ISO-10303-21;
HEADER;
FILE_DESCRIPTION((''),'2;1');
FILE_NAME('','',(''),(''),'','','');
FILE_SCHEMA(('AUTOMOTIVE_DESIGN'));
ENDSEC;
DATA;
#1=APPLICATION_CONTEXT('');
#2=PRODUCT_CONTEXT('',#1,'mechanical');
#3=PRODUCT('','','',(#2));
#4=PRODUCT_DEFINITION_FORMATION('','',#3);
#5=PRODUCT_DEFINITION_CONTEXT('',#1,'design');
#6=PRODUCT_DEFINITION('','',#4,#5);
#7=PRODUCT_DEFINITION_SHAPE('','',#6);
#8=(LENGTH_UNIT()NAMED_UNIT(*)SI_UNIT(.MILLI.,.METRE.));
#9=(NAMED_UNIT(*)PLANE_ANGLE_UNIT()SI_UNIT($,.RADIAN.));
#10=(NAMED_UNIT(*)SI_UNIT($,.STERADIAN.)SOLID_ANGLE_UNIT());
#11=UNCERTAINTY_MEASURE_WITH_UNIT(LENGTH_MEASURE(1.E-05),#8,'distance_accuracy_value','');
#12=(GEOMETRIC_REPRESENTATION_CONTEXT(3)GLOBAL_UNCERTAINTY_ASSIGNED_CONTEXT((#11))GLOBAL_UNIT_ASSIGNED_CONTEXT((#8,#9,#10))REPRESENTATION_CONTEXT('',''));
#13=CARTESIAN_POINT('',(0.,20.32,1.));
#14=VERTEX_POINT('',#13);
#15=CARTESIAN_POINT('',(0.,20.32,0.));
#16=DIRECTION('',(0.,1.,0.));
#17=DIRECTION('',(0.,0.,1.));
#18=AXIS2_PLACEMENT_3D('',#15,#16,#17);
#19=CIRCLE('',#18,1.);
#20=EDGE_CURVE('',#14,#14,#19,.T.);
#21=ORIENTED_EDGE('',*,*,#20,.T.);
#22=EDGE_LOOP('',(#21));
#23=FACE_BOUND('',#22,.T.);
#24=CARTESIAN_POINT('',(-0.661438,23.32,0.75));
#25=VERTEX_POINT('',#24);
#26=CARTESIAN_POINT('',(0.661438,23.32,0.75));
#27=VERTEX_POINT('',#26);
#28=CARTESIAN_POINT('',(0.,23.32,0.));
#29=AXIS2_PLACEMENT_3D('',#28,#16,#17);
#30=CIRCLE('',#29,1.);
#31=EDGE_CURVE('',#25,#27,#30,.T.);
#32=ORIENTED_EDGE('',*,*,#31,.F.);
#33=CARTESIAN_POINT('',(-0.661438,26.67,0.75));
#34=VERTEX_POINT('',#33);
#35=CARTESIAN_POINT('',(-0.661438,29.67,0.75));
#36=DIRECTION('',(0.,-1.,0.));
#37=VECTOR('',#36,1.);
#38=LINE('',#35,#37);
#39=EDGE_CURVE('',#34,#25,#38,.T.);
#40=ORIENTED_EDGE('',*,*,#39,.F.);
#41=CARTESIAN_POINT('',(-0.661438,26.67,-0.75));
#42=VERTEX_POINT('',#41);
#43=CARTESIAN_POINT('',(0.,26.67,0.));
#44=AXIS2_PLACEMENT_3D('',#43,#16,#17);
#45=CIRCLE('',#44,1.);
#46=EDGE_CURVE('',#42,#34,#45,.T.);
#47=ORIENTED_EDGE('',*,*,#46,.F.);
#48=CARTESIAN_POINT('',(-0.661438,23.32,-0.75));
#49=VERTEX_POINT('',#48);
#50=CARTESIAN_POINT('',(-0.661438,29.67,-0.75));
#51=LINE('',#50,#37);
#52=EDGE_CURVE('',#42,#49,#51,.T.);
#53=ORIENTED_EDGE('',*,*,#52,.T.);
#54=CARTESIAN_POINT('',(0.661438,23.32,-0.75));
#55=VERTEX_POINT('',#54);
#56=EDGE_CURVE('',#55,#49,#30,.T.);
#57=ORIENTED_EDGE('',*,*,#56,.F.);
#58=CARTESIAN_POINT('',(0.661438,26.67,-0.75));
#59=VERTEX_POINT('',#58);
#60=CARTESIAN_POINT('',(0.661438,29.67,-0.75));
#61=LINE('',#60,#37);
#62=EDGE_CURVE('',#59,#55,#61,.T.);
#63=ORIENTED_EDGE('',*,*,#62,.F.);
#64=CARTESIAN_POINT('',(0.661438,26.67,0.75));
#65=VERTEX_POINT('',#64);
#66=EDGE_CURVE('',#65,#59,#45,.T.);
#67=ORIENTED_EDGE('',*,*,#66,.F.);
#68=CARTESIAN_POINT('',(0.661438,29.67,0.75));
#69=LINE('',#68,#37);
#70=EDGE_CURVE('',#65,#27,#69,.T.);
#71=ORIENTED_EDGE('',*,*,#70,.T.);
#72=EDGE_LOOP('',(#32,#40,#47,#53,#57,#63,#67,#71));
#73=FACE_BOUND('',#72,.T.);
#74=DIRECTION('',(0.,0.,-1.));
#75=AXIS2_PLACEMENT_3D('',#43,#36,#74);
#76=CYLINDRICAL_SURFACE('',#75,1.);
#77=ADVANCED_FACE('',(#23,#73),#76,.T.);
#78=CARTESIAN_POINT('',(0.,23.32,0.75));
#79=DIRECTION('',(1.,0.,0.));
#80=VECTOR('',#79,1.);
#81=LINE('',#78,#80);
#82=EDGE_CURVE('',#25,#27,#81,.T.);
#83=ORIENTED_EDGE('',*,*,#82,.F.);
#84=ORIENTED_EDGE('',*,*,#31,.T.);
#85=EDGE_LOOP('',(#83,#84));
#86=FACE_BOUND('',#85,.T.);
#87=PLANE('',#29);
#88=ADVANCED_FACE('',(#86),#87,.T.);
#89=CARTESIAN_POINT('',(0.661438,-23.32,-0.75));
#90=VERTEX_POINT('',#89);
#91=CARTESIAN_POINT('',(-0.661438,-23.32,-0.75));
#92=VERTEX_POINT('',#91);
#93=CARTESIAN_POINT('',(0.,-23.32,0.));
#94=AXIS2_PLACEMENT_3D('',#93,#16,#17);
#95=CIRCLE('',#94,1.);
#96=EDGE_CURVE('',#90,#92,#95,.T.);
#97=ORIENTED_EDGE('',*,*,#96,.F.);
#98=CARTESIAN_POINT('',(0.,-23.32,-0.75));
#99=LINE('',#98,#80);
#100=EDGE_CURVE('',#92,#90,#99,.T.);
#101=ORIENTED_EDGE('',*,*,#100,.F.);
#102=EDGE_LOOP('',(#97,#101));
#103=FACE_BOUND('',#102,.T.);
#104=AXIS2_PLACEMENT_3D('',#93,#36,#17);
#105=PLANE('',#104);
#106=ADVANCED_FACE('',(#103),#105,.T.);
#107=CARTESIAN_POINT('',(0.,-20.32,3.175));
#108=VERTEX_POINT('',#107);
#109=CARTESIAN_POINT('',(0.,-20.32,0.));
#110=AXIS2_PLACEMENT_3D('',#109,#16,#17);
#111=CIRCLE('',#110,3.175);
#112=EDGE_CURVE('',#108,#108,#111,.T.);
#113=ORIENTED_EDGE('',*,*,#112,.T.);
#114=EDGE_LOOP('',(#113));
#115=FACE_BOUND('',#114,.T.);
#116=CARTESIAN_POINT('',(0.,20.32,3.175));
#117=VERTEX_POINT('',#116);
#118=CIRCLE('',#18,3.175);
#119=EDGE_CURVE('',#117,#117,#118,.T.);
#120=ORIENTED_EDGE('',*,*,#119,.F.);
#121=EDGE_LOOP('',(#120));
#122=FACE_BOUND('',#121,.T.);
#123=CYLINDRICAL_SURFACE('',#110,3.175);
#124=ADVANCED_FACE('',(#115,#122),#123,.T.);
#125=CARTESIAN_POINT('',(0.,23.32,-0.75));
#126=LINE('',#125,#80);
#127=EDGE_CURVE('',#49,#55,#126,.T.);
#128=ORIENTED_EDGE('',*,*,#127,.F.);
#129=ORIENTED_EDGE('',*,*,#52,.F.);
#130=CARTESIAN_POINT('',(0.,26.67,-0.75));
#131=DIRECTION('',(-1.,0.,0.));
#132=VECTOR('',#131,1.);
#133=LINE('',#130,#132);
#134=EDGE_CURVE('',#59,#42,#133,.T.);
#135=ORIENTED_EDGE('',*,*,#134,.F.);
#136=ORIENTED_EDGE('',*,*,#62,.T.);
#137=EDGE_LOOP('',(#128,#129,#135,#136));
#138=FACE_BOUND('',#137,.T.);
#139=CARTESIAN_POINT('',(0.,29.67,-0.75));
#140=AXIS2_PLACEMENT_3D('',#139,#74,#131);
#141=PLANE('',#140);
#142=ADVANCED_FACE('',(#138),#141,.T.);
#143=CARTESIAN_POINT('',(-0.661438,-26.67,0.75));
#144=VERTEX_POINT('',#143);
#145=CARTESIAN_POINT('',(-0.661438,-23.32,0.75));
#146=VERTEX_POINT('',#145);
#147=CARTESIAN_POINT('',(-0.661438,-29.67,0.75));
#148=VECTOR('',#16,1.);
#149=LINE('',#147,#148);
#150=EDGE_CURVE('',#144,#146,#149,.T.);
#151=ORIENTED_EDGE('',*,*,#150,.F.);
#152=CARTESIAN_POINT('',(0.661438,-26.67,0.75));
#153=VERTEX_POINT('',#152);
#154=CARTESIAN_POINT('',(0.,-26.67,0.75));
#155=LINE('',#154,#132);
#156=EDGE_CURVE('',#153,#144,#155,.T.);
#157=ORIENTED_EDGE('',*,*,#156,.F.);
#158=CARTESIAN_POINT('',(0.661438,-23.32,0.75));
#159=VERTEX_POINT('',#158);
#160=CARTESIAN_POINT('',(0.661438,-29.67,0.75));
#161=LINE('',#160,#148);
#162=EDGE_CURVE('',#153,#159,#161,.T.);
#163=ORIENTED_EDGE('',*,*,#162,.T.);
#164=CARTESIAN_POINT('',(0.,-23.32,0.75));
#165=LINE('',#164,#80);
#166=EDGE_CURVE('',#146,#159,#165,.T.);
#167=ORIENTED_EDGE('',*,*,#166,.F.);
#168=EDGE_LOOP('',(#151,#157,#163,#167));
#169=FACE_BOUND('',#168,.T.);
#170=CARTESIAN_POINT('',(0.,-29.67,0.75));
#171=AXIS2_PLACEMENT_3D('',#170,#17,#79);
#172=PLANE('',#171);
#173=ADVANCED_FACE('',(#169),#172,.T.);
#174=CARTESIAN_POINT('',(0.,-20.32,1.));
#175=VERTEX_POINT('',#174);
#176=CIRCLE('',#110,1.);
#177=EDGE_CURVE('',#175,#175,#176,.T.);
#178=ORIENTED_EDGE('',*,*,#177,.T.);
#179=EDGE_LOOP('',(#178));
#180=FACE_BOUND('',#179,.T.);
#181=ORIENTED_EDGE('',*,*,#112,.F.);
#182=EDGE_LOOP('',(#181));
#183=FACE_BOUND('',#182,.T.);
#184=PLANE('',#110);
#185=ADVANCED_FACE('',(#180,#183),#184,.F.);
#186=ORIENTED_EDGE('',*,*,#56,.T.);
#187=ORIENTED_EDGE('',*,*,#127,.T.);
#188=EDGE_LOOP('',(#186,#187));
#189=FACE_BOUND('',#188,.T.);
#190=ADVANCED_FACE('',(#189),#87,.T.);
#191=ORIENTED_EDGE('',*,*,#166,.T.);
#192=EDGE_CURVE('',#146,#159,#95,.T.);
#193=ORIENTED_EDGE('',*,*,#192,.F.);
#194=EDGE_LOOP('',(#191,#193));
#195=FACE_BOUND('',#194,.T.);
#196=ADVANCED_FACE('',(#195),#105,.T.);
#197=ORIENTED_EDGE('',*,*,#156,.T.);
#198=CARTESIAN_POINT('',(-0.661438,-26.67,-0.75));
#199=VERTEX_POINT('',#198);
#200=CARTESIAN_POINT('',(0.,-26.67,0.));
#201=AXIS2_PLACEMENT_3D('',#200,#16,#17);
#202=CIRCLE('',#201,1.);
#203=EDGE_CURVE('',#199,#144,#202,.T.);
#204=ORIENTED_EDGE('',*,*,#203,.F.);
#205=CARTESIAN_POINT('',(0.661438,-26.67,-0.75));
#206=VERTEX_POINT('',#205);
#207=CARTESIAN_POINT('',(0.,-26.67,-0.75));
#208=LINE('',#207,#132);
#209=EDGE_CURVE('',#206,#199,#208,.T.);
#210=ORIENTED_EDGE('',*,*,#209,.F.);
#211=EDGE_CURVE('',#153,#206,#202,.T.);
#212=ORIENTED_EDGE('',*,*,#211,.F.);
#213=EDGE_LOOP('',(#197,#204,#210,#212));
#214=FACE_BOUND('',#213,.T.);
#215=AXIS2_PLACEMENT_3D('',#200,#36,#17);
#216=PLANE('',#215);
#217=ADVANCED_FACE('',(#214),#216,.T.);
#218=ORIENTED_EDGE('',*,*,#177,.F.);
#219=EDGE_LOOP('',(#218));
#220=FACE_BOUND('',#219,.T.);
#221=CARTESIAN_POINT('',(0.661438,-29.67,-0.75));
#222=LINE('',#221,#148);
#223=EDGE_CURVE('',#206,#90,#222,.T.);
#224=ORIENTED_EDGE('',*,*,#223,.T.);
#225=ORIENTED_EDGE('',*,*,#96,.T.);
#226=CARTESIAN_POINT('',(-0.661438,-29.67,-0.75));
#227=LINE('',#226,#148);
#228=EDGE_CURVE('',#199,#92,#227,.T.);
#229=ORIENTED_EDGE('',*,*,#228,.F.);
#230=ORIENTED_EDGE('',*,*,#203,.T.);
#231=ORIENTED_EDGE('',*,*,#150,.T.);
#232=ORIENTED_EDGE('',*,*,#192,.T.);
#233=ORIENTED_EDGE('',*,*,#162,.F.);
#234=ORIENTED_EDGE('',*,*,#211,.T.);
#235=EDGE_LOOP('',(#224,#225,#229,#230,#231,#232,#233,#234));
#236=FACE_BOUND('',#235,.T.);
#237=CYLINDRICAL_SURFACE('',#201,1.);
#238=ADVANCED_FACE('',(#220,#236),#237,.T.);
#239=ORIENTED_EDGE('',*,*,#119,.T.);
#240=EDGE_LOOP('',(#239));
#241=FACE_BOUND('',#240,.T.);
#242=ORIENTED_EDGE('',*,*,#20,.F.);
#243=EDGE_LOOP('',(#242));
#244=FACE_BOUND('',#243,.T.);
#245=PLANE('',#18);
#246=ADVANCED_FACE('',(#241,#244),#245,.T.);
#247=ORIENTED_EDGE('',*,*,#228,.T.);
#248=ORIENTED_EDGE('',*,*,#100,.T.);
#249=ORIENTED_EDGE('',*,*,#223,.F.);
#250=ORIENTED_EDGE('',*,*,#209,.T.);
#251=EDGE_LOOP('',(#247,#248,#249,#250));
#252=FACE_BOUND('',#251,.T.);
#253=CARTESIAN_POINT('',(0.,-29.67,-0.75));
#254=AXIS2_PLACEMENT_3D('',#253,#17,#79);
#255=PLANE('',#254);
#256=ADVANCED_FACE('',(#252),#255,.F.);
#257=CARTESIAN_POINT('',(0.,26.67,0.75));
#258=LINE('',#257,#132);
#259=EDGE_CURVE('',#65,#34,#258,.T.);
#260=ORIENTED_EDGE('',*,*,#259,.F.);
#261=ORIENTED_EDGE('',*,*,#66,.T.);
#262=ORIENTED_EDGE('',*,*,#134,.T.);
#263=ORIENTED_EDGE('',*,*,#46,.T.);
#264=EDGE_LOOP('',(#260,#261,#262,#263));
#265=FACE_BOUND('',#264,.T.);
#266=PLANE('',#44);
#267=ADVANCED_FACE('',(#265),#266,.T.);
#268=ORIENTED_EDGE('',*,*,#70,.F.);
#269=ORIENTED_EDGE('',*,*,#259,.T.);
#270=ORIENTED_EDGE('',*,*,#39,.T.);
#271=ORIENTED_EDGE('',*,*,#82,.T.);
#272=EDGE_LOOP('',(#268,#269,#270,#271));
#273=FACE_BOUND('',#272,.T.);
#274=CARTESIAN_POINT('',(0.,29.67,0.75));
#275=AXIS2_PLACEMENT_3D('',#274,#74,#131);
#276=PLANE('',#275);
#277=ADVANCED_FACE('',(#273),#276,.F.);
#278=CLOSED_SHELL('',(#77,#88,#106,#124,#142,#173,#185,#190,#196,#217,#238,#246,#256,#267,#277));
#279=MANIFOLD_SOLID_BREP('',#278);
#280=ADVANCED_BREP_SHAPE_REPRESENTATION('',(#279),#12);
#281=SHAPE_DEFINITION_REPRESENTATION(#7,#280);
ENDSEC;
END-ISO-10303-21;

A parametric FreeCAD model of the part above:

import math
import FreeCAD as App
import Part
import Sketcher
from FreeCAD import Vector
Q = App.Units.Quantity

doc = App.newDocument("Part")
params = doc.addObject("Spreadsheet::Sheet", "Params")
for row, (alias, value) in enumerate([
    ("sketch1_diameter", "0.25 in"),
    ("pad1_length", "0.8 in"),
    ("pad1_length2", "0.8 in"),
    ("pad2_length", "0.25 in"),
    ("pocket1_length", "0.25 in"),
], start=1):
    params.set(f"A{row}", alias)
    params.set(f"B{row}", "=" + value)
    params.setAlias(f"B{row}", alias)

body = doc.addObject("PartDesign::Body", "Body")

sketch1 = doc.addObject("Sketcher::SketchObject", "Sketch")
body.addObject(sketch1)
sketch1.AttachmentSupport = (doc.XZ_Plane, [""])
sketch1.MapMode = "FlatFace"
sketch1.addGeometry(Part.Circle(Vector(0, 0, 0), Vector(0, 0, 1), 3.175), False)
sketch1.addConstraint([
    Sketcher.Constraint("Coincident", 0, 3, -1, 1),
    Sketcher.Constraint("Diameter", 0, Q("0.25 in")),
])
sketch1.setExpression("Constraints[1]", "Params.sketch1_diameter")
pad1 = doc.addObject("PartDesign::Pad", "Pad")
body.addObject(pad1)
pad1.Profile = sketch1
pad1.Type = "TwoLengths"
pad1.setExpression("Length", "Params.pad1_length")
pad1.setExpression("Length2", "Params.pad1_length2")
pad1.Reversed = True

sketch2 = doc.addObject("Sketcher::SketchObject", "Sketch001")
body.addObject(sketch2)
sketch2.AttachmentSupport = (doc.XZ_Plane, [""])
sketch2.MapMode = "FlatFace"
sketch2.AttachmentOffset = App.Placement(Vector(0, 0, -0.8 * 25.4), App.Rotation())
sketch2.addGeometry(Part.Circle(Vector(0, 0, 0), Vector(0, 0, 1), 1), False)
sketch2.addConstraint([
    Sketcher.Constraint("Coincident", 0, 3, -1, 1),
    Sketcher.Constraint("Diameter", 0, 2.0),
])
pad2 = doc.addObject("PartDesign::Pad", "Pad001")
body.addObject(pad2)
pad2.Profile = sketch2
pad2.setExpression("Length", "Params.pad2_length")
pad2.Reversed = True

sketch3 = doc.addObject("Sketcher::SketchObject", "Sketch002")
body.addObject(sketch3)
sketch3.AttachmentSupport = (doc.XZ_Plane, [""])
sketch3.MapMode = "FlatFace"
sketch3.AttachmentOffset = App.Placement(Vector(0, 0, -23.32), App.Rotation())
sketch3.addGeometry([
    Part.ArcOfCircle(Part.Circle(Vector(0, 0, 0), Vector(0, 0, 1), 1), math.radians(-131.409622), math.radians(-48.590378)),
    Part.LineSegment(Vector(-0.661438, -0.75, 0), Vector(0.661438, -0.75, 0)),
    Part.LineSegment(Vector(0.661438, 0.75, 0), Vector(-0.661438, 0.75, 0)),
    Part.ArcOfCircle(Part.Circle(Vector(0, 0, 0), Vector(0, 0, 1), 1), math.radians(48.590378), math.radians(131.409622)),
], False)
sketch3.addConstraint([
    Sketcher.Constraint("Coincident", 0, 1, 1, 1),
    Sketcher.Constraint("Coincident", 1, 2, 0, 2),
    Sketcher.Constraint("Coincident", 2, 1, 3, 1),
    Sketcher.Constraint("Coincident", 3, 2, 2, 2),
    Sketcher.Constraint("Horizontal", 1),
    Sketcher.Constraint("Horizontal", 2),
    Sketcher.Constraint("Coincident", 0, 3, -1, 1),
    Sketcher.Constraint("Coincident", 3, 3, -1, 1),
    Sketcher.Constraint("Equal", 0, 3),
    Sketcher.Constraint("Vertical", 1, 2, 2, 1),
    Sketcher.Constraint("Radius", 0, 1.0),
    Sketcher.Constraint("DistanceY", 0, 1, -1, 1, 0.75),
])
pocket1 = doc.addObject("PartDesign::Pocket", "Pocket")
body.addObject(pocket1)
pocket1.Profile = sketch3
pocket1.setExpression("Length", "Params.pocket1_length")
doc.recompute()

mirrored = doc.addObject("PartDesign::Mirrored", "Mirrored")
body.addObject(mirrored)
mirrored.Originals = [pad2, pocket1]
mirrored.MirrorPlane = (doc.XZ_Plane, [""])
body.Tip = mirrored

doc.recompute()
